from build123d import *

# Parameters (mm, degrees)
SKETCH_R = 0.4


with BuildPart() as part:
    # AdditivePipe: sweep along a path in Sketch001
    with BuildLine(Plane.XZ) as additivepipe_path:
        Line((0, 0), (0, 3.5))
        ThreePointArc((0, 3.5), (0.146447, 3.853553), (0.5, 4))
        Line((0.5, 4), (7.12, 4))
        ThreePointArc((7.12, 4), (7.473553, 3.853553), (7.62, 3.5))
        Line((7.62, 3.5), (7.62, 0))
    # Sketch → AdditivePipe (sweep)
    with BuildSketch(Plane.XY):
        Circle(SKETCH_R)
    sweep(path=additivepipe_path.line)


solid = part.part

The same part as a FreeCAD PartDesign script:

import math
import FreeCAD as App
import Part
import Sketcher
from FreeCAD import Vector
Q = App.Units.Quantity

doc = App.newDocument("Part")
body = doc.addObject("PartDesign::Body", "Body")

# Sketch on XY plane
sketch1 = body.newObject("Sketcher::SketchObject", "Sketch")
sketch1.AttachmentSupport = (doc.getObject("XY_Plane"), [""])
sketch1.MapMode = "FlatFace"
sketch1.addGeometry(Part.Circle(Vector(0, 0, 0), Vector(0, 0, 1), 0.4), False)
sketch1.addConstraint(Sketcher.Constraint("Coincident", 0, 3, -1, 1))
sketch1.addConstraint(Sketcher.Constraint("Diameter", 0, Q("0.8 mm")))

# Sketch on XZ plane
sketch2 = body.newObject("Sketcher::SketchObject", "Sketch001")
sketch2.AttachmentSupport = (doc.getObject("XZ_Plane"), [""])
sketch2.MapMode = "FlatFace"
sketch2.addGeometry(Part.LineSegment(Vector(0, 0, 0), Vector(0, 3.5, 0)), False)
sketch2.addGeometry(Part.ArcOfCircle(Part.Circle(Vector(0.5, 3.5, 0), Vector(0, 0, 1), 0.5), math.radians(90), math.radians(180)), False)
sketch2.addGeometry(Part.LineSegment(Vector(0.5, 4, 0), Vector(7.1, 4, 0)), False)
sketch2.addGeometry(Part.ArcOfCircle(Part.Circle(Vector(7.1, 3.5, 0), Vector(0, 0, 1), 0.5), math.radians(0), math.radians(90)), False)
sketch2.addGeometry(Part.LineSegment(Vector(7.6, 3.5, 0), Vector(7.6, 0, 0)), False)
sketch2.addConstraint(Sketcher.Constraint("Coincident", 0, 2, 1, 2))
sketch2.addConstraint(Sketcher.Constraint("Coincident", 1, 1, 2, 1))
sketch2.addConstraint(Sketcher.Constraint("Coincident", 2, 2, 3, 2))
sketch2.addConstraint(Sketcher.Constraint("Coincident", 3, 1, 4, 1))
sketch2.addConstraint(Sketcher.Constraint("Vertical", 0))
sketch2.addConstraint(Sketcher.Constraint("Horizontal", 2))
sketch2.addConstraint(Sketcher.Constraint("Vertical", 4))
sketch2.addConstraint(Sketcher.Constraint("Coincident", 0, 1, -1, 1))
sketch2.addConstraint(Sketcher.Constraint("Equal", 1, 3))
sketch2.addConstraint(Sketcher.Constraint("PointOnObject", 4, 2, -1))
sketch2.addConstraint(Sketcher.Constraint("Horizontal", 3, 3, 0, 2))
sketch2.addConstraint(Sketcher.Constraint("Horizontal", 0, 2, 3, 1))
sketch2.addConstraint(Sketcher.Constraint("Vertical", 3, 3, 2, 2))
sketch2.addConstraint(Sketcher.Constraint("Radius", 1, Q("0.500001 mm")))
sketch2.addConstraint(Sketcher.Constraint("DistanceY", 0, 1, 0, 2, Q("3.5 mm")))
sketch2.addConstraint(Sketcher.Constraint("DistanceX", 2, 1, 2, 2, Q("6.62 mm")))
sketch2.addConstraint(Sketcher.Constraint("DistanceX", -1, 1, 1, 1, Q("0.5 mm")))
doc.recompute()

additivepipe = body.newObject("PartDesign::AdditivePipe", "AdditivePipe")
additivepipe.Profile = sketch1
additivepipe.Spine = (sketch2, ["Edge1", "Edge2", "Edge3", "Edge4", "Edge5"])

doc.recompute()
